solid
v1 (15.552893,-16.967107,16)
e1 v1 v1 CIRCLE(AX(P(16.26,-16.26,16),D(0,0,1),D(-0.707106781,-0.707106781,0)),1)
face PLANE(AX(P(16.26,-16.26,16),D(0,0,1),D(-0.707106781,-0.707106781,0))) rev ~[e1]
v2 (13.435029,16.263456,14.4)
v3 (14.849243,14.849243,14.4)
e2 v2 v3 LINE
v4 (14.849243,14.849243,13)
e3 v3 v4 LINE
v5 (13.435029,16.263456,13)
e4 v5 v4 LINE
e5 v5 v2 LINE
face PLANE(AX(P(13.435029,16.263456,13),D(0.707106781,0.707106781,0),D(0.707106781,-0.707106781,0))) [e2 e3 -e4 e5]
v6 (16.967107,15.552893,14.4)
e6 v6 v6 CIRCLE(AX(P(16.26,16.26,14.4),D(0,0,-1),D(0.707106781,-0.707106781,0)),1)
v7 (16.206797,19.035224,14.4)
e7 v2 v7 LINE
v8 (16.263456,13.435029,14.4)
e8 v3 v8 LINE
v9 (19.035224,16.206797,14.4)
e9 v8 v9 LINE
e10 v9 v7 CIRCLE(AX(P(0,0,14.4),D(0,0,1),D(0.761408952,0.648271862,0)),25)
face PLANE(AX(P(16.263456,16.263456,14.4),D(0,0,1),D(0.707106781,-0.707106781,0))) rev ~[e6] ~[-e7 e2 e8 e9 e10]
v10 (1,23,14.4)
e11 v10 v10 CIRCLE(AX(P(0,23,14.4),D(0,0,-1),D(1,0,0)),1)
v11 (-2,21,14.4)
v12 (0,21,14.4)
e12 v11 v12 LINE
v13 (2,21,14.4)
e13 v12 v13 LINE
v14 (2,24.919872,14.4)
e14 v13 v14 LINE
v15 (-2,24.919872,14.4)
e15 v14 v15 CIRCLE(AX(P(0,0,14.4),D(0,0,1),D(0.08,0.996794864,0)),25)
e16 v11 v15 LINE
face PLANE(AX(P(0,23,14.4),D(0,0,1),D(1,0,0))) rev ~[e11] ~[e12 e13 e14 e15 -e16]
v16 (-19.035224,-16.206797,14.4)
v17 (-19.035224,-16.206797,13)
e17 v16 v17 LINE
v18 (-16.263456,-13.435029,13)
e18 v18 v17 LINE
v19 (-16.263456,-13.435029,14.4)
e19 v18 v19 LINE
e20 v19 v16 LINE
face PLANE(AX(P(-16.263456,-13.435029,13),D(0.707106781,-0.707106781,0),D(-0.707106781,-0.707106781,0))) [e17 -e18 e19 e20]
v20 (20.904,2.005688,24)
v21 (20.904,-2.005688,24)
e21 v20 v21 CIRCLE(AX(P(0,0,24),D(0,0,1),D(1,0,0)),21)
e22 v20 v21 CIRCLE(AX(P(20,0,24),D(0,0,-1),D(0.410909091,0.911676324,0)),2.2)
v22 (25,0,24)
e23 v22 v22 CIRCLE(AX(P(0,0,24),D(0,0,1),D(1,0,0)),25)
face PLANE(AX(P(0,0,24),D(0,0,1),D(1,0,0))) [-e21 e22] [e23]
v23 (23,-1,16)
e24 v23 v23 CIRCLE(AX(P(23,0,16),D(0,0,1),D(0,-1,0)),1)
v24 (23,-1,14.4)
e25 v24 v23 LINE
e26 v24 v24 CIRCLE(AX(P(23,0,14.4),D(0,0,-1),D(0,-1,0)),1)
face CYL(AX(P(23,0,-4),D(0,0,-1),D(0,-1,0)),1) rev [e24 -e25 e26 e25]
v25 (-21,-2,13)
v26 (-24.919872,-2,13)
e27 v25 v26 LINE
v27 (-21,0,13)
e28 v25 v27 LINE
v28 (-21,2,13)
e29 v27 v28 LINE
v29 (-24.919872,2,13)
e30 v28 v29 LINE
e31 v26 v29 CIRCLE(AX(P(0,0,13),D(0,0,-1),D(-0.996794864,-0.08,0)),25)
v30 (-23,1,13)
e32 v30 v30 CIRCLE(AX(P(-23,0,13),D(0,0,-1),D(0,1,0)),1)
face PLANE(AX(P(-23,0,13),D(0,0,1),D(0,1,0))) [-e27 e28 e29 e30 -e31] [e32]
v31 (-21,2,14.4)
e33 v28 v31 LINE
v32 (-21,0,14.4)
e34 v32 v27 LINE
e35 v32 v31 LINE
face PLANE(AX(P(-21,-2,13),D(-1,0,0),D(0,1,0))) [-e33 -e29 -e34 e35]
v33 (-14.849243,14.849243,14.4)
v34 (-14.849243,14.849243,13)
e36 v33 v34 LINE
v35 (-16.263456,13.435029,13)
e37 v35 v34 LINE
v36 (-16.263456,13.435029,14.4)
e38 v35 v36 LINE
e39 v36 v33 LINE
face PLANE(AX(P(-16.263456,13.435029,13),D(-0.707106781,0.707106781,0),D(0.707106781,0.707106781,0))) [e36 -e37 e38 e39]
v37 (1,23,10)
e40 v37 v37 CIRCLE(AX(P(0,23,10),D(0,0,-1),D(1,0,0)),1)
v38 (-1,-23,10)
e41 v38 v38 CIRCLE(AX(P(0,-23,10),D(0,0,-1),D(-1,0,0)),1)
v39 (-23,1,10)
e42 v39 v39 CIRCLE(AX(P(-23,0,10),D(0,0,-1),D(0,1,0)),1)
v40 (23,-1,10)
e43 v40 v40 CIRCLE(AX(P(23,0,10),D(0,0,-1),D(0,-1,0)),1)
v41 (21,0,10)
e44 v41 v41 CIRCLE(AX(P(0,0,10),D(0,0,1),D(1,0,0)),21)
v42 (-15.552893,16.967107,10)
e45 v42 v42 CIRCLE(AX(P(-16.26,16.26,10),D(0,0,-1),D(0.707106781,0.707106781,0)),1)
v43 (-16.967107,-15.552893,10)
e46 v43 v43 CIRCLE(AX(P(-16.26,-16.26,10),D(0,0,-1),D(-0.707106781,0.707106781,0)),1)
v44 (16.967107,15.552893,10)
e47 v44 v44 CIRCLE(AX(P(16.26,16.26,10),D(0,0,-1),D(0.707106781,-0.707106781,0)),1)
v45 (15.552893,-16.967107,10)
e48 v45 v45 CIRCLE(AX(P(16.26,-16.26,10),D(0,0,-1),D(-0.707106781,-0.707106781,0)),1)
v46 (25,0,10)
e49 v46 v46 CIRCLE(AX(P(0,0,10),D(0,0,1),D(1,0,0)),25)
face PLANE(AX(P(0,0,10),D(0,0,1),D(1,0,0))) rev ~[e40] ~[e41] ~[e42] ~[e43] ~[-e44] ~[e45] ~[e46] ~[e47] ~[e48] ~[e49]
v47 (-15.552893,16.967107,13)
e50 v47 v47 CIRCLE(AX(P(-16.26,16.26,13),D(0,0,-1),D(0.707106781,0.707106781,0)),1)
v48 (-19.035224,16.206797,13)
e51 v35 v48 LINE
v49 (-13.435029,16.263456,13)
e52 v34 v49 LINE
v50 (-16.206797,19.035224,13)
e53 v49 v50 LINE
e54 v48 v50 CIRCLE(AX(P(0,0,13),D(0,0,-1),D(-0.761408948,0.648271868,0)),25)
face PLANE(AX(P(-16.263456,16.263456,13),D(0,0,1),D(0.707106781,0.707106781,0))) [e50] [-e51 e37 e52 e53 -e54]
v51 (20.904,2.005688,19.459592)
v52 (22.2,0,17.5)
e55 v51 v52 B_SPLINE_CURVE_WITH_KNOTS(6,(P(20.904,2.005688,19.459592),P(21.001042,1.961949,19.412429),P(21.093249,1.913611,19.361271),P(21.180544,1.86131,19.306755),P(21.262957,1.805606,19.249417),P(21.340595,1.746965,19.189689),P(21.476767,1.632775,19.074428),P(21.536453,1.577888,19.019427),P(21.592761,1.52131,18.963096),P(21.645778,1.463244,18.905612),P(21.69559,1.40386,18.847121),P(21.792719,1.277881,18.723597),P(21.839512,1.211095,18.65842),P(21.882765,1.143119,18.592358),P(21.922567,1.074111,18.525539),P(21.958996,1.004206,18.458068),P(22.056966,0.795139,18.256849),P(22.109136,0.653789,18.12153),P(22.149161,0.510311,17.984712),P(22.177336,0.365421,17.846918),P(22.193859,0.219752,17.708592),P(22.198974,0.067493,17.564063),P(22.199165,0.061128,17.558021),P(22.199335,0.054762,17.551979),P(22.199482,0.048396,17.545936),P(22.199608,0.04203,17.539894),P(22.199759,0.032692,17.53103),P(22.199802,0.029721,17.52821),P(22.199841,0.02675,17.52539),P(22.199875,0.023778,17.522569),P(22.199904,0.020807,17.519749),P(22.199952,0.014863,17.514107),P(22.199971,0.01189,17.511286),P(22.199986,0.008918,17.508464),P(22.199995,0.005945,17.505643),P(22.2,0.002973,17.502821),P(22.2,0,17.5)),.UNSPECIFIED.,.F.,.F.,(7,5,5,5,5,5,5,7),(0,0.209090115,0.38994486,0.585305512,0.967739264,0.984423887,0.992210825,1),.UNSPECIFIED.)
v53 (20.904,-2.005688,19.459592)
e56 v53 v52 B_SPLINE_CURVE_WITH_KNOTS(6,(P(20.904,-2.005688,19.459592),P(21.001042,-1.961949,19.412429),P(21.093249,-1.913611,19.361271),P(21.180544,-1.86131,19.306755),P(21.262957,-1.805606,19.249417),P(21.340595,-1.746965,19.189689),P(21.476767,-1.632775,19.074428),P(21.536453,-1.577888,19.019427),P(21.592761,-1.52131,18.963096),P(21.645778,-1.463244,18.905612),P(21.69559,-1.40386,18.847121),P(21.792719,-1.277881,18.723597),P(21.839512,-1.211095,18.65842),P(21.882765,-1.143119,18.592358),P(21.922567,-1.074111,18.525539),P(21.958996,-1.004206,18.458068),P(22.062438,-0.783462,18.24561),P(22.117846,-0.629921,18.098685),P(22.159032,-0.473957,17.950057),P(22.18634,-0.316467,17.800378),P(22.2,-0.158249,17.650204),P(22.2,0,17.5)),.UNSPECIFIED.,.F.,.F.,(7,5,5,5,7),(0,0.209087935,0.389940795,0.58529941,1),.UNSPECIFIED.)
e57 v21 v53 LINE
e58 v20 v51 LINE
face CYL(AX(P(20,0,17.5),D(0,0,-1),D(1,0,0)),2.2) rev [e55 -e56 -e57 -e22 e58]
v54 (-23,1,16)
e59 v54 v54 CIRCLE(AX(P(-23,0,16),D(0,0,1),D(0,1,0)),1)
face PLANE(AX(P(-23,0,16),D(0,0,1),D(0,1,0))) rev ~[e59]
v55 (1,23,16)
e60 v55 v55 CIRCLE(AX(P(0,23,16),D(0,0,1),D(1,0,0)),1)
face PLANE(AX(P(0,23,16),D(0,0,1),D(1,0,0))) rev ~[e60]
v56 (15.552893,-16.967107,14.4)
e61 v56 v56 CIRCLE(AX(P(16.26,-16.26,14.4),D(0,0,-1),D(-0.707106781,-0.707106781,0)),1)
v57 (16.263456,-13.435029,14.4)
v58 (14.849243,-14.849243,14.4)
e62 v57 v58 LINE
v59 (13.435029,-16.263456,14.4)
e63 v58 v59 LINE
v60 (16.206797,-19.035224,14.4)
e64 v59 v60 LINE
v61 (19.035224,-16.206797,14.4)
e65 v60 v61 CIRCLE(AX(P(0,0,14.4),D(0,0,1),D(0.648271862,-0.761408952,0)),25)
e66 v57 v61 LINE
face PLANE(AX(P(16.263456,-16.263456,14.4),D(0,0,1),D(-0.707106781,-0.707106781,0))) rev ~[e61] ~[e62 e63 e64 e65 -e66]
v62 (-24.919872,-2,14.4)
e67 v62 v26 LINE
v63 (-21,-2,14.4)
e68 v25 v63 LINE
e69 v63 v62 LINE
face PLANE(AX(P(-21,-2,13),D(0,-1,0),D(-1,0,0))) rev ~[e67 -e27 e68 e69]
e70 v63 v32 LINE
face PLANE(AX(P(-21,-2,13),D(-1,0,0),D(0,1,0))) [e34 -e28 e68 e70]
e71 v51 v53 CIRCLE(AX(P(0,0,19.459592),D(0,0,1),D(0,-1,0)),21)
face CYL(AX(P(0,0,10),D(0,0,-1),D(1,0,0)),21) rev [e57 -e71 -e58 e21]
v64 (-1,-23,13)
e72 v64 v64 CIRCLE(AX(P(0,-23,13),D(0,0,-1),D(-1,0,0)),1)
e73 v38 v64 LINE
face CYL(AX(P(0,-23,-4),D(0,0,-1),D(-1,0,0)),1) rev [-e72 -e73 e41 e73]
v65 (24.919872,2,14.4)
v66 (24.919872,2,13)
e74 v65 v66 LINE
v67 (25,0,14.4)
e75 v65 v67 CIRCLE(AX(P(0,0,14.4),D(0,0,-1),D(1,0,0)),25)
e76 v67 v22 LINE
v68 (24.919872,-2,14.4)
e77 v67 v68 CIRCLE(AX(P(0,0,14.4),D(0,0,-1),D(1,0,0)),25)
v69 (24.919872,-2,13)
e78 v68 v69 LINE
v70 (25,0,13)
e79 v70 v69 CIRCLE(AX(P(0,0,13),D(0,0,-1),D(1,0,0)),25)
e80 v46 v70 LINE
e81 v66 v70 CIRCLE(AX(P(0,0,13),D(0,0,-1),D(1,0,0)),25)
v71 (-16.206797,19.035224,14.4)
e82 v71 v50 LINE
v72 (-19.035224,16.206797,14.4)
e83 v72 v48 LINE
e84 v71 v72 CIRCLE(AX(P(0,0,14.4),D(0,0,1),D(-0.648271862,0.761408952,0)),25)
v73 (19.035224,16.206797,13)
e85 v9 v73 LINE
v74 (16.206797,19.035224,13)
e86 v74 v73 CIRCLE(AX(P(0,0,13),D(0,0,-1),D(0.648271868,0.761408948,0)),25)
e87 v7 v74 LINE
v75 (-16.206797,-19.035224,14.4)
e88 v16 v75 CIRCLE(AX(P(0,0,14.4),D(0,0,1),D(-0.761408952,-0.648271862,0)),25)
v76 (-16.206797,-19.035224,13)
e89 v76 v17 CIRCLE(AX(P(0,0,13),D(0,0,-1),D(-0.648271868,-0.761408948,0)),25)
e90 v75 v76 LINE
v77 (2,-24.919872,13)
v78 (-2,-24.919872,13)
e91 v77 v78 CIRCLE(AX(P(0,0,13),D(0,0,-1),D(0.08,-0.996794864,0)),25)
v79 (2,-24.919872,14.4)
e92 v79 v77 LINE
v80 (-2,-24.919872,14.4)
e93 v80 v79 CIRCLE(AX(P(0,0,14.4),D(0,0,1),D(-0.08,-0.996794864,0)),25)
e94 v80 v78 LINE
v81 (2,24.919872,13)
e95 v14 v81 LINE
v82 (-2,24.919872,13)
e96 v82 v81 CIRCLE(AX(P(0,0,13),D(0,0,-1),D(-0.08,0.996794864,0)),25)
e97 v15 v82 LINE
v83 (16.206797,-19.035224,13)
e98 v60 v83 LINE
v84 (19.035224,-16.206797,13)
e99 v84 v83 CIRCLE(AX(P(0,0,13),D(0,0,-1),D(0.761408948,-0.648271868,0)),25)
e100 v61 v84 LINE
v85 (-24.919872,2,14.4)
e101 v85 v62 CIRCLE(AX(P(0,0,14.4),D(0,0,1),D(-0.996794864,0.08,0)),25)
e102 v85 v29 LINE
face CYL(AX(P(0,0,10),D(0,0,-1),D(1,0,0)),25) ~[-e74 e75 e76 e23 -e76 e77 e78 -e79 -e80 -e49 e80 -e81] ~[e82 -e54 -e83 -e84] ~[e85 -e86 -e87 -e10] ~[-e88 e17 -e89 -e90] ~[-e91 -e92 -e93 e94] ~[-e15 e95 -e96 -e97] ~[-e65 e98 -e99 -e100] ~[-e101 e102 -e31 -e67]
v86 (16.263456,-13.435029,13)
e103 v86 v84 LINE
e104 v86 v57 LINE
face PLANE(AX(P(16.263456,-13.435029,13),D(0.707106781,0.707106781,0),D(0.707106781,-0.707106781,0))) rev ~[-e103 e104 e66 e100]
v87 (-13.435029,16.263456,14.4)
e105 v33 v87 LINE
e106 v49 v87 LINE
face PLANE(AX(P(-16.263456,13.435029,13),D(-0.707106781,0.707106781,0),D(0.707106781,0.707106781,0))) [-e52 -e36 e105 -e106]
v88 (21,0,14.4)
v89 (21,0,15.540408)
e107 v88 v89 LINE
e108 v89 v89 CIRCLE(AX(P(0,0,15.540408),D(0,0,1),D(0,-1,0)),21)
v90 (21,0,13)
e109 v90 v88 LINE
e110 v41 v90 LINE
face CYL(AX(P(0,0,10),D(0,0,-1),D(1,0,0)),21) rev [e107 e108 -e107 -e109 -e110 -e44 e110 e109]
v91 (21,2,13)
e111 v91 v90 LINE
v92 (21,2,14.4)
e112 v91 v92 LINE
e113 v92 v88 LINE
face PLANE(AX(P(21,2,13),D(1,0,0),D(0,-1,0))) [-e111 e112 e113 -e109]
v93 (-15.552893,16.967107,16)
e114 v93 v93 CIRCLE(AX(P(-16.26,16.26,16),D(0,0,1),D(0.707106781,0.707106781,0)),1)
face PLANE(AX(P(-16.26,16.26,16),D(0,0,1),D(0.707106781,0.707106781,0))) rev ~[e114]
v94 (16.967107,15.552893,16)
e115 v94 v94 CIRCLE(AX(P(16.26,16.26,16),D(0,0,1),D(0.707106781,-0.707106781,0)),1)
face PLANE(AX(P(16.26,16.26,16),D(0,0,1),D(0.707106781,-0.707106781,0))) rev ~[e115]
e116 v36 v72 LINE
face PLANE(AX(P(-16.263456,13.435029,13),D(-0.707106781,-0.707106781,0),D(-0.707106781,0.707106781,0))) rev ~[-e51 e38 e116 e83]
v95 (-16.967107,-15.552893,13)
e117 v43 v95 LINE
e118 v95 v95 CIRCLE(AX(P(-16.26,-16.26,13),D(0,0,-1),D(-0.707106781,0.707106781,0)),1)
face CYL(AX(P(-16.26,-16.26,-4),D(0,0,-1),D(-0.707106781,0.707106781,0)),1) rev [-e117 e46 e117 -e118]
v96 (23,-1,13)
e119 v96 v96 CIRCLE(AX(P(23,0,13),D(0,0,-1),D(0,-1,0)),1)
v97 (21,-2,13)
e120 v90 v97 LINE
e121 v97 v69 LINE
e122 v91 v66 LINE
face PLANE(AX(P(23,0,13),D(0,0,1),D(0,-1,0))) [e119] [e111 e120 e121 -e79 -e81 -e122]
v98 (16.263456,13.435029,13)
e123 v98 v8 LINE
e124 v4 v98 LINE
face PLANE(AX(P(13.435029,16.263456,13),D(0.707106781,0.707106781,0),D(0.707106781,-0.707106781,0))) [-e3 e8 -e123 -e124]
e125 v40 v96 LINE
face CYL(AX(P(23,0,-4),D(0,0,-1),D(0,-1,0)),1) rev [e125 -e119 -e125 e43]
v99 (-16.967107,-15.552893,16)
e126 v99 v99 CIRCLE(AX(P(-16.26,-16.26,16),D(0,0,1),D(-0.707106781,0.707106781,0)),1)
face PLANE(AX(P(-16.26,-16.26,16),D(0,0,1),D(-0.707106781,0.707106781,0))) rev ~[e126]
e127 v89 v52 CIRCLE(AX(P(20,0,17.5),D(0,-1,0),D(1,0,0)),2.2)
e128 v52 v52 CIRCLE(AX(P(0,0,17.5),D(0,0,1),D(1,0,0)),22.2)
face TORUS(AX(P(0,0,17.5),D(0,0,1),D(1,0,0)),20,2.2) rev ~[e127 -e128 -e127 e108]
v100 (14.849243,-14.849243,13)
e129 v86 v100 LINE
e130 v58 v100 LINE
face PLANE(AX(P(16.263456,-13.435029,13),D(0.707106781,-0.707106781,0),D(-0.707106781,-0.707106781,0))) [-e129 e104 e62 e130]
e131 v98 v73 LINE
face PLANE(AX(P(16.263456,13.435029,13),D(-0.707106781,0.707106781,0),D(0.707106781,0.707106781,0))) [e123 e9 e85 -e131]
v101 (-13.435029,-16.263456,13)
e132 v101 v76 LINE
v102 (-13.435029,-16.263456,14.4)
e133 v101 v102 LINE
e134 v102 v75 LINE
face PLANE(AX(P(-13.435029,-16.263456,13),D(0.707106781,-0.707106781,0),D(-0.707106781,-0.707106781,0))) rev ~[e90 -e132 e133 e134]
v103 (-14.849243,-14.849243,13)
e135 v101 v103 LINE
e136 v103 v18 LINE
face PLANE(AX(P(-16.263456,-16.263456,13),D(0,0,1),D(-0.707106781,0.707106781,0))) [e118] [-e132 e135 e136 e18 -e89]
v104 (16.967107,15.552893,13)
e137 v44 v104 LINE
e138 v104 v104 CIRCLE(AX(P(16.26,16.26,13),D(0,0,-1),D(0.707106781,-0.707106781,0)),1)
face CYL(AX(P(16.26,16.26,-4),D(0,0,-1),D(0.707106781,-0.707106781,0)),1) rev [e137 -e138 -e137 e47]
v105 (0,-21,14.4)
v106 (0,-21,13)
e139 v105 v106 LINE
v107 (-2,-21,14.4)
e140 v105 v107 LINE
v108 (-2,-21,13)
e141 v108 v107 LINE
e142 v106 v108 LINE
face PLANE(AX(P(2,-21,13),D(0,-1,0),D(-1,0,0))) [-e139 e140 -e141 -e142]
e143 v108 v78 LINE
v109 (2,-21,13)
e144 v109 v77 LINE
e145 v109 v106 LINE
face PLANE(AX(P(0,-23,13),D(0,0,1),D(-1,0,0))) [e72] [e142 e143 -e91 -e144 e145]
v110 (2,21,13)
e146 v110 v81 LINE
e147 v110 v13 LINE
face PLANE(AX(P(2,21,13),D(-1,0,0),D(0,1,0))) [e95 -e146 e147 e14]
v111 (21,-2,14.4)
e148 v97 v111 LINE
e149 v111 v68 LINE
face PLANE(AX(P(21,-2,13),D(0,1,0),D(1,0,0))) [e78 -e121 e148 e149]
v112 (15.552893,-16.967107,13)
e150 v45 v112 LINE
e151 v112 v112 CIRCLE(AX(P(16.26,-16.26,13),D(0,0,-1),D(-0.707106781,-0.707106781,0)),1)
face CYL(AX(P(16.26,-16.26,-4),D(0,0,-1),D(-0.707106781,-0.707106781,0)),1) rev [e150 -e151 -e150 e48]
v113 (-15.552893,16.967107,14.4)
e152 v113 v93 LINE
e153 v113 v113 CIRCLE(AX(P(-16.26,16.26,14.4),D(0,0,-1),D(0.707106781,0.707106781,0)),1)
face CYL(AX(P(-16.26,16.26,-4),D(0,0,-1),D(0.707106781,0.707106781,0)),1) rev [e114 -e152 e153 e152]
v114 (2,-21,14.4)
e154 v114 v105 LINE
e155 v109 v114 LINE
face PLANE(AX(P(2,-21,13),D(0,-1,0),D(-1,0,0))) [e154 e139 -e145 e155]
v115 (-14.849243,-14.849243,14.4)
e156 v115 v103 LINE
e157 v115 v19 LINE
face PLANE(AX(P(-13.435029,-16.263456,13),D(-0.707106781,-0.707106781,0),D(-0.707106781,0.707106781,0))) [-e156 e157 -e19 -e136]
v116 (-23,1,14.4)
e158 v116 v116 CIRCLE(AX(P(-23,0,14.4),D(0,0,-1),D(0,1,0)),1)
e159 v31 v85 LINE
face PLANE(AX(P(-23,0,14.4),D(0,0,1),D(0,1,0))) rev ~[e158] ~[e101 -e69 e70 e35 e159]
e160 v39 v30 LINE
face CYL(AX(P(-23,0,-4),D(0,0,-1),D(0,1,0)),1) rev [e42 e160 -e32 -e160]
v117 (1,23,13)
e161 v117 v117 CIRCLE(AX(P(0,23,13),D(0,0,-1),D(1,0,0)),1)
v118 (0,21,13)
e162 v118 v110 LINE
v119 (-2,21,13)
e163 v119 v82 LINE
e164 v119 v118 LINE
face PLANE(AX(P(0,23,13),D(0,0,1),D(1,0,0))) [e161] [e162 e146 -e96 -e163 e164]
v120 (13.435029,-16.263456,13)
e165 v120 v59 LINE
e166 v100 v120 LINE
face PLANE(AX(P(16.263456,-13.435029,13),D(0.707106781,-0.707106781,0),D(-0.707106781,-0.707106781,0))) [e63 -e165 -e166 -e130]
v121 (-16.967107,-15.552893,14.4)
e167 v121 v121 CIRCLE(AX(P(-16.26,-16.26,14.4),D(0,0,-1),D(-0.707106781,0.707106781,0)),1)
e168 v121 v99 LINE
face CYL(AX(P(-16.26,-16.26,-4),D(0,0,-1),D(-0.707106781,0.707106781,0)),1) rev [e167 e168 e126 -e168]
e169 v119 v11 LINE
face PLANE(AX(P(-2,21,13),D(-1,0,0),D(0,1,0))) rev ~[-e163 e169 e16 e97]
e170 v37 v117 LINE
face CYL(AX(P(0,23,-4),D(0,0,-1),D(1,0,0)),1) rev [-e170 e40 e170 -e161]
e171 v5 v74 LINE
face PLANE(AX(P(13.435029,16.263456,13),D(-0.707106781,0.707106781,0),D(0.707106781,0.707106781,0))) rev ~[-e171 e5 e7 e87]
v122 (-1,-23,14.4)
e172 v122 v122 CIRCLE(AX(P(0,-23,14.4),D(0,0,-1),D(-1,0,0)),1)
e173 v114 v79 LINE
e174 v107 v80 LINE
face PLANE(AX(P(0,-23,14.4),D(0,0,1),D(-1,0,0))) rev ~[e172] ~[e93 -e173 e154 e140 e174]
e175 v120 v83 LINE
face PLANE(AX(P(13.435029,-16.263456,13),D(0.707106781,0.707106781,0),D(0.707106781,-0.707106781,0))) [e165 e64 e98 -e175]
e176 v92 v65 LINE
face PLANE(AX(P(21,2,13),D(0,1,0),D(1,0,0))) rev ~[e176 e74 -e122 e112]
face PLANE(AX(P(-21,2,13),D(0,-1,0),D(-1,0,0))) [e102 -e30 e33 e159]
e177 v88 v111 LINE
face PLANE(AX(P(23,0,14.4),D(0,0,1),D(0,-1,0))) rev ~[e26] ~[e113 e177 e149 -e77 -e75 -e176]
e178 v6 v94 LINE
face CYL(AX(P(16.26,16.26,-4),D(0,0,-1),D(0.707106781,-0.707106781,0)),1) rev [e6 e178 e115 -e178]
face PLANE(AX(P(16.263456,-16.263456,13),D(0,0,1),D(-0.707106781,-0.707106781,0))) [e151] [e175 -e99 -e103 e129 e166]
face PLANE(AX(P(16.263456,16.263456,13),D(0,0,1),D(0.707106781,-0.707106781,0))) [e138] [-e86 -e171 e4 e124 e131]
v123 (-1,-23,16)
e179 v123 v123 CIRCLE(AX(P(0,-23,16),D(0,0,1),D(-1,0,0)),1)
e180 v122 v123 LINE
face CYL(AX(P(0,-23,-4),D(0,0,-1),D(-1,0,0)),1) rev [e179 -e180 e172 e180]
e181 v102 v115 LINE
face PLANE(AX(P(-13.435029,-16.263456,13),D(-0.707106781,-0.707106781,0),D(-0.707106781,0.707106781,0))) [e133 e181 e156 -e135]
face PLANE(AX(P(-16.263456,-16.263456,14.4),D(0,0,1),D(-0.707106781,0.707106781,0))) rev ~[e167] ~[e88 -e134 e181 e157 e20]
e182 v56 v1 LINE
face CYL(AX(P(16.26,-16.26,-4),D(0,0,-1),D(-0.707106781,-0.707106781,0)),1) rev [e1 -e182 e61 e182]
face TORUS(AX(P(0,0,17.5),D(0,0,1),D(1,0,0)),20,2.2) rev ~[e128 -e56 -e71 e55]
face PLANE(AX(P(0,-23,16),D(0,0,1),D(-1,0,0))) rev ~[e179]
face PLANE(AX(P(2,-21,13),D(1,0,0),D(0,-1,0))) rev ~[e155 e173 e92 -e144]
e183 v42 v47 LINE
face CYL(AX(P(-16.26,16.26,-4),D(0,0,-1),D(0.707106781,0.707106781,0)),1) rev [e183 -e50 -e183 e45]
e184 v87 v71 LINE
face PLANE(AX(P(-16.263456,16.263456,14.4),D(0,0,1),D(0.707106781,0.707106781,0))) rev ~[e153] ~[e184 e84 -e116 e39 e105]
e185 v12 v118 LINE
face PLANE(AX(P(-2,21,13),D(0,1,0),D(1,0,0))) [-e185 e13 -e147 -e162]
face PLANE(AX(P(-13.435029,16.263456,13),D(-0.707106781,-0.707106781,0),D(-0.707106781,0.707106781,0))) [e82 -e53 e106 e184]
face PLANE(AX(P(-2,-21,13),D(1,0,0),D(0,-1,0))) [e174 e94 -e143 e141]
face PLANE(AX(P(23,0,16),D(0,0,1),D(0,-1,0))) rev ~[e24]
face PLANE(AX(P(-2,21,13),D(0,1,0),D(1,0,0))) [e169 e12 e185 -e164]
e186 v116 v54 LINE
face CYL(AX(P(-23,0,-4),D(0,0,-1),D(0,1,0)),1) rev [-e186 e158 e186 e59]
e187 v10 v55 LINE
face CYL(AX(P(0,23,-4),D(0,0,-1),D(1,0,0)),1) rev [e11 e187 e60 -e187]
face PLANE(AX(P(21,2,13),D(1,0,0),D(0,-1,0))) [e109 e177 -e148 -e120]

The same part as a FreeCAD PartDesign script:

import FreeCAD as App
import Part
import Sketcher
from FreeCAD import Vector
Q = App.Units.Quantity


def add_polygon(sketch, points):
    """Adds a closed chain of lines whose ends are joined by coincident constraints."""
    first, n = sketch.GeometryCount, len(points)
    for a, b in zip(points, points[1:] + points[:1]):
        sketch.addGeometry(Part.LineSegment(App.Vector(*a, 0), App.Vector(*b, 0)), False)
    for i in range(n):
        sketch.addConstraint(Sketcher.Constraint("Coincident", first + i, 2, first + (i + 1) % n, 1))

doc = App.newDocument("Part")
body = doc.addObject("PartDesign::Body", "Body")

# Sketch on XY plane
sketch1 = doc.addObject("Sketcher::SketchObject", "Sketch")
body.addObject(sketch1)
sketch1.AttachmentSupport = (doc.XY_Plane, [""])
sketch1.MapMode = "FlatFace"
sketch1.AttachmentOffset = App.Placement(Vector(0, 0, 17.5), App.Rotation())
sketch1.addGeometry(Part.Circle(Vector(20, 0, 0), Vector(0, 0, 1), 2.2), False)
sketch1.addConstraint(Sketcher.Constraint("PointOnObject", 0, 3, -1))
sketch1.addConstraint(Sketcher.Constraint("Diameter", 0, Q("4.4 mm")))
sketch1.addConstraint(Sketcher.Constraint("DistanceX", -1, 1, 0, 3, Q("20 mm")))
pad1 = doc.addObject("PartDesign::Pad", "Pad")
body.addObject(pad1)
pad1.Profile = sketch1
pad1.Length = 10
body2 = doc.addObject("PartDesign::Body", "Body001")

# Sketch on XY plane
sketch2 = doc.addObject("Sketcher::SketchObject", "Sketch001")
body2.addObject(sketch2)
sketch2.AttachmentSupport = (doc.getObject("XY_Plane001"), [""])
sketch2.MapMode = "FlatFace"
sketch2.addGeometry(Part.Circle(Vector(0, 0, 0), Vector(0, 0, 1), 1), False)
sketch2.addConstraint(Sketcher.Constraint("Coincident", 0, 3, -1, 1))
sketch2.addConstraint(Sketcher.Constraint("Diameter", 0, Q("2 mm")))
pad2 = doc.addObject("PartDesign::Pad", "Pad001")
body2.addObject(pad2)
pad2.Profile = sketch2
pad2.Length = 20
body3 = doc.addObject("PartDesign::Body", "Body002")
doc.recompute()

body2.Placement = App.Placement(Vector(16.26, 16.26, 8), App.Rotation(Vector(0, 0, -1), 45))
boolean = doc.addObject("PartDesign::Boolean", "Boolean")
body3.addObject(boolean)
boolean.Type = "Fuse"
boolean.addObjects([body2])
body4 = doc.addObject("PartDesign::Body", "Body003")

# Sketch on XY plane
sketch3 = doc.addObject("Sketcher::SketchObject", "Sketch002")
body4.addObject(sketch3)
sketch3.AttachmentSupport = (doc.getObject("XY_Plane003"), [""])
sketch3.MapMode = "FlatFace"
sketch3.AttachmentOffset = App.Placement(Vector(0, 0, 8), App.Rotation())
sketch3.addGeometry(Part.Circle(Vector(23, 0, 0), Vector(0, 0, 1), 1), False)
sketch3.addConstraint(Sketcher.Constraint("PointOnObject", 0, 3, -1))
sketch3.addConstraint(Sketcher.Constraint("Diameter", 0, Q("2 mm")))
sketch3.addConstraint(Sketcher.Constraint("DistanceX", -1, 1, 0, 3, Q("23 mm")))
pad3 = doc.addObject("PartDesign::Pad", "Pad002")
body4.addObject(pad3)
pad3.Profile = sketch3
pad3.Length = 20
body5 = doc.addObject("PartDesign::Body", "Body004")

# Sketch on XY plane
sketch4 = doc.addObject("Sketcher::SketchObject", "Sketch003")
body5.addObject(sketch4)
sketch4.AttachmentSupport = (doc.getObject("XY_Plane004"), [""])
sketch4.MapMode = "FlatFace"
sketch4.AttachmentOffset = App.Placement(Vector(0, 0, 8), App.Rotation())
sketch4.addGeometry(Part.Circle(Vector(0, -23, 0), Vector(0, 0, 1), 1), False)
sketch4.addConstraint(Sketcher.Constraint("PointOnObject", 0, 3, -2))
sketch4.addConstraint(Sketcher.Constraint("Diameter", 0, Q("2 mm")))
sketch4.addConstraint(Sketcher.Constraint("DistanceY", 0, 3, -1, 1, Q("23 mm")))
pad4 = doc.addObject("PartDesign::Pad", "Pad003")
body5.addObject(pad4)
pad4.Profile = sketch4
pad4.Length = 20
body6 = doc.addObject("PartDesign::Body", "Body005")

# Sketch on XY plane
sketch5 = doc.addObject("Sketcher::SketchObject", "Sketch004")
body6.addObject(sketch5)
sketch5.AttachmentSupport = (doc.getObject("XY_Plane005"), [""])
sketch5.MapMode = "FlatFace"
sketch5.addGeometry(Part.Circle(Vector(0, 0, 0), Vector(0, 0, 1), 1), False)
sketch5.addConstraint(Sketcher.Constraint("Coincident", 0, 3, -1, 1))
sketch5.addConstraint(Sketcher.Constraint("Diameter", 0, Q("2 mm")))
pad5 = doc.addObject("PartDesign::Pad", "Pad004")
body6.addObject(pad5)
pad5.Profile = sketch5
pad5.Length = 20
body7 = doc.addObject("PartDesign::Body", "Body006")
doc.recompute()

body6.Placement = App.Placement(Vector(16.26, -16.26, 8), App.Rotation(Vector(0, 0, 1), 225))
boolean2 = doc.addObject("PartDesign::Boolean", "Boolean001")
body7.addObject(boolean2)
boolean2.Type = "Fuse"
boolean2.addObjects([body6])
body8 = doc.addObject("PartDesign::Body", "Body007")

# Sketch on XY plane
sketch6 = doc.addObject("Sketcher::SketchObject", "Sketch005")
body8.addObject(sketch6)
sketch6.AttachmentSupport = (doc.getObject("XY_Plane007"), [""])
sketch6.MapMode = "FlatFace"
sketch6.addGeometry(Part.Circle(Vector(0, 0, 0), Vector(0, 0, 1), 1), False)
sketch6.addConstraint(Sketcher.Constraint("Coincident", 0, 3, -1, 1))
sketch6.addConstraint(Sketcher.Constraint("Diameter", 0, Q("2 mm")))
pad6 = doc.addObject("PartDesign::Pad", "Pad005")
body8.addObject(pad6)
pad6.Profile = sketch6
pad6.Length = 20
body9 = doc.addObject("PartDesign::Body", "Body008")
doc.recompute()

body8.Placement = App.Placement(Vector(-16.26, -16.26, 8), App.Rotation(Vector(0, 0, 1), 135))
boolean3 = doc.addObject("PartDesign::Boolean", "Boolean002")
body9.addObject(boolean3)
boolean3.Type = "Fuse"
boolean3.addObjects([body8])
body10 = doc.addObject("PartDesign::Body", "Body009")

# Sketch on XY plane
sketch7 = doc.addObject("Sketcher::SketchObject", "Sketch006")
body10.addObject(sketch7)
sketch7.AttachmentSupport = (doc.getObject("XY_Plane009"), [""])
sketch7.MapMode = "FlatFace"
sketch7.addGeometry(Part.Circle(Vector(0, 0, 0), Vector(0, 0, 1), 1), False)
sketch7.addConstraint(Sketcher.Constraint("Coincident", 0, 3, -1, 1))
sketch7.addConstraint(Sketcher.Constraint("Diameter", 0, Q("2 mm")))
pad7 = doc.addObject("PartDesign::Pad", "Pad006")
body10.addObject(pad7)
pad7.Profile = sketch7
pad7.Length = 20
body11 = doc.addObject("PartDesign::Body", "Body010")
doc.recompute()

body10.Placement = App.Placement(Vector(-16.26, 16.26, 8), App.Rotation(Vector(0, 0, 1), 45))
boolean4 = doc.addObject("PartDesign::Boolean", "Boolean003")
body11.addObject(boolean4)
boolean4.Type = "Fuse"
boolean4.addObjects([body10])
body12 = doc.addObject("PartDesign::Body", "Body011")

# Sketch on XY plane
sketch8 = doc.addObject("Sketcher::SketchObject", "Sketch007")
body12.addObject(sketch8)
sketch8.AttachmentSupport = (doc.getObject("XY_Plane011"), [""])
sketch8.MapMode = "FlatFace"
sketch8.AttachmentOffset = App.Placement(Vector(0, 0, 8), App.Rotation())
sketch8.addGeometry(Part.Circle(Vector(-23, 0, 0), Vector(0, 0, 1), 1), False)
sketch8.addConstraint(Sketcher.Constraint("PointOnObject", 0, 3, -1))
sketch8.addConstraint(Sketcher.Constraint("Diameter", 0, Q("2 mm")))
sketch8.addConstraint(Sketcher.Constraint("DistanceX", 0, 3, -1, 1, Q("23 mm")))
pad8 = doc.addObject("PartDesign::Pad", "Pad007")
body12.addObject(pad8)
pad8.Profile = sketch8
pad8.Length = 20
body13 = doc.addObject("PartDesign::Body", "Body012")
body13.AllowCompound = True

# Sketch on XY plane
sketch9 = doc.addObject("Sketcher::SketchObject", "Sketch008")
body13.addObject(sketch9)
sketch9.AttachmentSupport = (doc.getObject("XY_Plane012"), [""])
sketch9.MapMode = "FlatFace"
sketch9.AttachmentOffset = App.Placement(Vector(0, 0, 8), App.Rotation())
sketch9.addGeometry(Part.Circle(Vector(0, 23, 0), Vector(0, 0, 1), 1), False)
sketch9.addConstraint(Sketcher.Constraint("PointOnObject", 0, 3, -2))
sketch9.addConstraint(Sketcher.Constraint("Diameter", 0, Q("2 mm")))
sketch9.addConstraint(Sketcher.Constraint("DistanceY", -1, 1, 0, 3, Q("23 mm")))
pad9 = doc.addObject("PartDesign::Pad", "Pad008")
body13.addObject(pad9)
pad9.Profile = sketch9
pad9.Length = 20
doc.recompute()

boolean5 = doc.addObject("PartDesign::Boolean", "Boolean004")
body13.addObject(boolean5)
boolean5.Type = "Fuse"
boolean5.addObjects([body3])
doc.recompute()

boolean6 = doc.addObject("PartDesign::Boolean", "Boolean005")
body13.addObject(boolean6)
boolean6.Type = "Fuse"
boolean6.addObjects([body4])
doc.recompute()

boolean7 = doc.addObject("PartDesign::Boolean", "Boolean006")
body13.addObject(boolean7)
boolean7.Type = "Fuse"
boolean7.addObjects([body5])
doc.recompute()

boolean8 = doc.addObject("PartDesign::Boolean", "Boolean007")
body13.addObject(boolean8)
boolean8.Type = "Fuse"
boolean8.addObjects([body7])
doc.recompute()

boolean9 = doc.addObject("PartDesign::Boolean", "Boolean008")
body13.addObject(boolean9)
boolean9.Type = "Fuse"
boolean9.addObjects([body9])
doc.recompute()

boolean10 = doc.addObject("PartDesign::Boolean", "Boolean009")
body13.addObject(boolean10)
boolean10.Type = "Fuse"
boolean10.addObjects([body11])
doc.recompute()

boolean11 = doc.addObject("PartDesign::Boolean", "Boolean010")
body13.addObject(boolean11)
boolean11.Type = "Fuse"
boolean11.addObjects([body12])
body14 = doc.addObject("PartDesign::Body", "Body013")
body14.AllowCompound = True
doc.recompute()

body13.Placement = App.Placement(Vector(0, 0, -12), App.Rotation(Vector(0, 0, 1), 0))
boolean12 = doc.addObject("PartDesign::Boolean", "Boolean011")
body14.addObject(boolean12)
boolean12.Type = "Fuse"
boolean12.addObjects([body13])
body15 = doc.addObject("PartDesign::Body", "Body014")

# Sketch on XY plane
sketch10 = doc.addObject("Sketcher::SketchObject", "Sketch009")
body15.addObject(sketch10)
sketch10.AttachmentSupport = (doc.getObject("XY_Plane014"), [""])
sketch10.MapMode = "FlatFace"
add_polygon(sketch10, [(0, 4), (0, 0), (4, 0), (4, 4)])  # lines 0-3
sketch10.addConstraint(Sketcher.Constraint("Vertical", 0))
sketch10.addConstraint(Sketcher.Constraint("Horizontal", 1))
sketch10.addConstraint(Sketcher.Constraint("Vertical", 2))
sketch10.addConstraint(Sketcher.Constraint("Horizontal", 3))
sketch10.addConstraint(Sketcher.Constraint("Coincident", 0, 2, -1, 1))
sketch10.addConstraint(Sketcher.Constraint("Equal", 3, 0))
sketch10.addConstraint(Sketcher.Constraint("DistanceX", 1, 1, 1, 2, Q("4 mm")))
pad10 = doc.addObject("PartDesign::Pad", "Pad009")
body15.addObject(pad10)
pad10.Profile = sketch10
pad10.Length = 1.4
body16 = doc.addObject("PartDesign::Body", "Body015")
doc.recompute()

body15.Placement = App.Placement(Vector(-16.263456, 13.435029, 14), App.Rotation(Vector(0, 0, 1), 45))
boolean13 = doc.addObject("PartDesign::Boolean", "Boolean012")
body16.addObject(boolean13)
boolean13.Type = "Fuse"
boolean13.addObjects([body15])
body17 = doc.addObject("PartDesign::Body", "Body016")

# Sketch on XY plane
sketch11 = doc.addObject("Sketcher::SketchObject", "Sketch010")
body17.addObject(sketch11)
sketch11.AttachmentSupport = (doc.getObject("XY_Plane016"), [""])
sketch11.MapMode = "FlatFace"
sketch11.AttachmentOffset = App.Placement(Vector(0, 0, 14), App.Rotation())
add_polygon(sketch11, [(-25, -2), (-21, -2), (-21, 2), (-25, 2)])  # lines 0-3
sketch11.addConstraint(Sketcher.Constraint("Horizontal", 0))
sketch11.addConstraint(Sketcher.Constraint("Vertical", 1))
sketch11.addConstraint(Sketcher.Constraint("Horizontal", 2))
sketch11.addConstraint(Sketcher.Constraint("Vertical", 3))
sketch11.addConstraint(Sketcher.Constraint("Equal", 2, 1))
sketch11.addConstraint(Sketcher.Constraint("DistanceX", 0, 1, 0, 2, Q("4 mm")))
sketch11.addConstraint(Sketcher.Constraint("DistanceX", 0, 2, -1, 1, Q("21 mm")))
sketch11.addConstraint(Sketcher.Constraint("DistanceY", 0, 2, -1, 1, Q("2 mm")))
pad11 = doc.addObject("PartDesign::Pad", "Pad010")
body17.addObject(pad11)
pad11.Profile = sketch11
pad11.Length = 1.4
body18 = doc.addObject("PartDesign::Body", "Body017")

# Sketch on XY plane
sketch12 = doc.addObject("Sketcher::SketchObject", "Sketch011")
body18.addObject(sketch12)
sketch12.AttachmentSupport = (doc.getObject("XY_Plane017"), [""])
sketch12.MapMode = "FlatFace"
add_polygon(sketch12, [(0, 4), (0, 0), (4, 0), (4, 4)])  # lines 0-3
sketch12.addConstraint(Sketcher.Constraint("Vertical", 0))
sketch12.addConstraint(Sketcher.Constraint("Horizontal", 1))
sketch12.addConstraint(Sketcher.Constraint("Vertical", 2))
sketch12.addConstraint(Sketcher.Constraint("Horizontal", 3))
sketch12.addConstraint(Sketcher.Constraint("Coincident", 0, 2, -1, 1))
sketch12.addConstraint(Sketcher.Constraint("Equal", 3, 0))
sketch12.addConstraint(Sketcher.Constraint("DistanceX", 1, 1, 1, 2, Q("4 mm")))
pad12 = doc.addObject("PartDesign::Pad", "Pad011")
body18.addObject(pad12)
pad12.Profile = sketch12
pad12.Length = 1.4
body19 = doc.addObject("PartDesign::Body", "Body018")
doc.recompute()

body18.Placement = App.Placement(Vector(-13.435029, -16.263456, 14), App.Rotation(Vector(0, 0, 1), 135))
boolean14 = doc.addObject("PartDesign::Boolean", "Boolean013")
body19.addObject(boolean14)
boolean14.Type = "Fuse"
boolean14.addObjects([body18])
body20 = doc.addObject("PartDesign::Body", "Body019")

# Sketch on XY plane
sketch13 = doc.addObject("Sketcher::SketchObject", "Sketch012")
body20.addObject(sketch13)
sketch13.AttachmentSupport = (doc.getObject("XY_Plane019"), [""])
sketch13.MapMode = "FlatFace"
sketch13.AttachmentOffset = App.Placement(Vector(0, 0, 14), App.Rotation())
add_polygon(sketch13, [(2, -25), (2, -21), (-2, -21), (-2, -25)])  # lines 0-3
sketch13.addConstraint(Sketcher.Constraint("Vertical", 0))
sketch13.addConstraint(Sketcher.Constraint("Horizontal", 1))
sketch13.addConstraint(Sketcher.Constraint("Vertical", 2))
sketch13.addConstraint(Sketcher.Constraint("Horizontal", 3))
sketch13.addConstraint(Sketcher.Constraint("Equal", 3, 0))
sketch13.addConstraint(Sketcher.Constraint("DistanceX", 1, 2, 1, 1, Q("4 mm")))
sketch13.addConstraint(Sketcher.Constraint("DistanceX", -1, 1, 0, 2, Q("2 mm")))
sketch13.addConstraint(Sketcher.Constraint("DistanceY", 0, 2, -1, 1, Q("21 mm")))
pad13 = doc.addObject("PartDesign::Pad", "Pad012")
body20.addObject(pad13)
pad13.Profile = sketch13
pad13.Length = 1.4
body21 = doc.addObject("PartDesign::Body", "Body020")

# Sketch on XY plane
sketch14 = doc.addObject("Sketcher::SketchObject", "Sketch013")
body21.addObject(sketch14)
sketch14.AttachmentSupport = (doc.getObject("XY_Plane020"), [""])
sketch14.MapMode = "FlatFace"
add_polygon(sketch14, [(0, 4), (0, 0), (4, 0), (4, 4)])  # lines 0-3
sketch14.addConstraint(Sketcher.Constraint("Vertical", 0))
sketch14.addConstraint(Sketcher.Constraint("Horizontal", 1))
sketch14.addConstraint(Sketcher.Constraint("Vertical", 2))
sketch14.addConstraint(Sketcher.Constraint("Horizontal", 3))
sketch14.addConstraint(Sketcher.Constraint("Coincident", 0, 2, -1, 1))
sketch14.addConstraint(Sketcher.Constraint("Equal", 3, 0))
sketch14.addConstraint(Sketcher.Constraint("DistanceX", 1, 1, 1, 2, Q("4 mm")))
pad14 = doc.addObject("PartDesign::Pad", "Pad013")
body21.addObject(pad14)
pad14.Profile = sketch14
pad14.Length = 1.4
body22 = doc.addObject("PartDesign::Body", "Body021")
doc.recompute()

body21.Placement = App.Placement(Vector(16.263456, -13.435029, 14), App.Rotation(Vector(0, 0, 1), 225))
boolean15 = doc.addObject("PartDesign::Boolean", "Boolean014")
body22.addObject(boolean15)
boolean15.Type = "Fuse"
boolean15.addObjects([body21])
body23 = doc.addObject("PartDesign::Body", "Body022")

# Sketch on XY plane
sketch15 = doc.addObject("Sketcher::SketchObject", "Sketch014")
body23.addObject(sketch15)
sketch15.AttachmentSupport = (doc.getObject("XY_Plane022"), [""])
sketch15.MapMode = "FlatFace"
sketch15.AttachmentOffset = App.Placement(Vector(0, 0, 14), App.Rotation())
add_polygon(sketch15, [(25, 2), (21, 2), (21, -2), (25, -2)])  # lines 0-3
sketch15.addConstraint(Sketcher.Constraint("Horizontal", 0))
sketch15.addConstraint(Sketcher.Constraint("Vertical", 1))
sketch15.addConstraint(Sketcher.Constraint("Horizontal", 2))
sketch15.addConstraint(Sketcher.Constraint("Vertical", 3))
sketch15.addConstraint(Sketcher.Constraint("Equal", 2, 1))
sketch15.addConstraint(Sketcher.Constraint("DistanceX", 0, 2, 0, 1, Q("4 mm")))
sketch15.addConstraint(Sketcher.Constraint("DistanceX", -1, 1, 0, 2, Q("21 mm")))
sketch15.addConstraint(Sketcher.Constraint("DistanceY", -1, 1, 0, 2, Q("2 mm")))
pad15 = doc.addObject("PartDesign::Pad", "Pad014")
body23.addObject(pad15)
pad15.Profile = sketch15
pad15.Length = 1.4
body24 = doc.addObject("PartDesign::Body", "Body023")

# Sketch on XY plane
sketch16 = doc.addObject("Sketcher::SketchObject", "Sketch015")
body24.addObject(sketch16)
sketch16.AttachmentSupport = (doc.getObject("XY_Plane023"), [""])
sketch16.MapMode = "FlatFace"
add_polygon(sketch16, [(0, 4), (0, 0), (4, 0), (4, 4)])  # lines 0-3
sketch16.addConstraint(Sketcher.Constraint("Vertical", 0))
sketch16.addConstraint(Sketcher.Constraint("Horizontal", 1))
sketch16.addConstraint(Sketcher.Constraint("Vertical", 2))
sketch16.addConstraint(Sketcher.Constraint("Horizontal", 3))
sketch16.addConstraint(Sketcher.Constraint("Coincident", 0, 2, -1, 1))
sketch16.addConstraint(Sketcher.Constraint("Equal", 3, 0))
sketch16.addConstraint(Sketcher.Constraint("DistanceX", 1, 1, 1, 2, Q("4 mm")))
pad16 = doc.addObject("PartDesign::Pad", "Pad015")
body24.addObject(pad16)
pad16.Profile = sketch16
pad16.Length = 1.4
body25 = doc.addObject("PartDesign::Body", "Body024")
doc.recompute()

body24.Placement = App.Placement(Vector(13.435029, 16.263456, 14), App.Rotation(Vector(0, 0, -1), 45))
boolean16 = doc.addObject("PartDesign::Boolean", "Boolean015")
body25.addObject(boolean16)
boolean16.Type = "Fuse"
boolean16.addObjects([body24])
body26 = doc.addObject("PartDesign::Body", "Body025")
body26.AllowCompound = True

# Sketch on XY plane
sketch17 = doc.addObject("Sketcher::SketchObject", "Sketch016")
body26.addObject(sketch17)
sketch17.AttachmentSupport = (doc.getObject("XY_Plane025"), [""])
sketch17.MapMode = "FlatFace"
sketch17.AttachmentOffset = App.Placement(Vector(0, 0, 14), App.Rotation())
add_polygon(sketch17, [(-2, 25), (-2, 21), (2, 21), (2, 25)])  # lines 0-3
sketch17.addConstraint(Sketcher.Constraint("Vertical", 0))
sketch17.addConstraint(Sketcher.Constraint("Horizontal", 1))
sketch17.addConstraint(Sketcher.Constraint("Vertical", 2))
sketch17.addConstraint(Sketcher.Constraint("Horizontal", 3))
sketch17.addConstraint(Sketcher.Constraint("Equal", 3, 0))
sketch17.addConstraint(Sketcher.Constraint("DistanceX", 1, 1, 1, 2, Q("4 mm")))
sketch17.addConstraint(Sketcher.Constraint("DistanceX", 0, 2, -1, 1, Q("2 mm")))
sketch17.addConstraint(Sketcher.Constraint("DistanceY", -1, 1, 0, 2, Q("21 mm")))
pad17 = doc.addObject("PartDesign::Pad", "Pad016")
body26.addObject(pad17)
pad17.Profile = sketch17
pad17.Length = 1.4
doc.recompute()

boolean17 = doc.addObject("PartDesign::Boolean", "Boolean016")
body26.addObject(boolean17)
boolean17.Type = "Fuse"
boolean17.addObjects([body16])
doc.recompute()

boolean18 = doc.addObject("PartDesign::Boolean", "Boolean017")
body26.addObject(boolean18)
boolean18.Type = "Fuse"
boolean18.addObjects([body17])
doc.recompute()

boolean19 = doc.addObject("PartDesign::Boolean", "Boolean018")
body26.addObject(boolean19)
boolean19.Type = "Fuse"
boolean19.addObjects([body19])
doc.recompute()

boolean20 = doc.addObject("PartDesign::Boolean", "Boolean019")
body26.addObject(boolean20)
boolean20.Type = "Fuse"
boolean20.addObjects([body20])
doc.recompute()

boolean21 = doc.addObject("PartDesign::Boolean", "Boolean020")
body26.addObject(boolean21)
boolean21.Type = "Fuse"
boolean21.addObjects([body22])
doc.recompute()

boolean22 = doc.addObject("PartDesign::Boolean", "Boolean021")
body26.addObject(boolean22)
boolean22.Type = "Fuse"
boolean22.addObjects([body23])
doc.recompute()

boolean23 = doc.addObject("PartDesign::Boolean", "Boolean022")
body26.addObject(boolean23)
boolean23.Type = "Fuse"
boolean23.addObjects([body25])
body27 = doc.addObject("PartDesign::Body", "Body026")
body27.AllowCompound = True
doc.recompute()

body26.Placement = App.Placement(Vector(0, 0, -1), App.Rotation(Vector(0, 0, 1), 0))
boolean24 = doc.addObject("PartDesign::Boolean", "Boolean023")
body27.addObject(boolean24)
boolean24.Type = "Fuse"
boolean24.addObjects([body26])
body28 = doc.addObject("PartDesign::Body", "Body027")

# Sketch on XZ plane
sketch18 = doc.addObject("Sketcher::SketchObject", "Sketch017")
body28.addObject(sketch18)
sketch18.AttachmentSupport = (doc.getObject("XZ_Plane027"), [""])
sketch18.MapMode = "FlatFace"
sketch18.addGeometry(Part.Circle(Vector(20, 17.5, 0), Vector(0, 0, 1), 2.2), False)
sketch18.addConstraint(Sketcher.Constraint("Diameter", 0, Q("4.4 mm")))
sketch18.addConstraint(Sketcher.Constraint("DistanceX", -1, 1, 0, 3, Q("20 mm")))
sketch18.addConstraint(Sketcher.Constraint("DistanceY", -1, 1, 0, 3, Q("17.5 mm")))
revolution = doc.addObject("PartDesign::Revolution", "Revolution")
body28.addObject(revolution)
revolution.Profile = sketch18
revolution.ReferenceAxis = (sketch18, ["V_Axis"])
revolution.Angle = 360
body29 = doc.addObject("PartDesign::Body", "Body028")

# Sketch on XY plane
sketch19 = doc.addObject("Sketcher::SketchObject", "Sketch018")
body29.addObject(sketch19)
sketch19.AttachmentSupport = (doc.getObject("XY_Plane028"), [""])
sketch19.MapMode = "FlatFace"
sketch19.AttachmentOffset = App.Placement(Vector(0, 0, 10), App.Rotation())
sketch19.addGeometry(Part.Circle(Vector(0, 0, 0), Vector(0, 0, 1), 25), False)
sketch19.addGeometry(Part.Circle(Vector(0, 0, 0), Vector(0, 0, 1), 21), False)
sketch19.addConstraint(Sketcher.Constraint("Coincident", 0, 3, -1, 1))
sketch19.addConstraint(Sketcher.Constraint("Coincident", 1, 3, -1, 1))
sketch19.addConstraint(Sketcher.Constraint("Diameter", 0, Q("50 mm")))
sketch19.addConstraint(Sketcher.Constraint("Diameter", 1, Q("42 mm")))
pad18 = doc.addObject("PartDesign::Pad", "Pad017")
body29.addObject(pad18)
pad18.Profile = sketch19
pad18.Length = 14
doc.recompute()

boolean25 = doc.addObject("PartDesign::Boolean", "Boolean024")
body29.addObject(boolean25)
boolean25.Type = "Cut"
boolean25.addObjects([body28])
doc.recompute()

boolean26 = doc.addObject("PartDesign::Boolean", "Boolean025")
body29.addObject(boolean26)
boolean26.Type = "Cut"
boolean26.addObjects([body27])
doc.recompute()

boolean27 = doc.addObject("PartDesign::Boolean", "Boolean026")
body29.addObject(boolean27)
boolean27.Type = "Cut"
boolean27.addObjects([body14])
doc.recompute()

boolean28 = doc.addObject("PartDesign::Boolean", "Boolean027")
body29.addObject(boolean28)
boolean28.Type = "Cut"
boolean28.addObjects([body])

doc.recompute()
